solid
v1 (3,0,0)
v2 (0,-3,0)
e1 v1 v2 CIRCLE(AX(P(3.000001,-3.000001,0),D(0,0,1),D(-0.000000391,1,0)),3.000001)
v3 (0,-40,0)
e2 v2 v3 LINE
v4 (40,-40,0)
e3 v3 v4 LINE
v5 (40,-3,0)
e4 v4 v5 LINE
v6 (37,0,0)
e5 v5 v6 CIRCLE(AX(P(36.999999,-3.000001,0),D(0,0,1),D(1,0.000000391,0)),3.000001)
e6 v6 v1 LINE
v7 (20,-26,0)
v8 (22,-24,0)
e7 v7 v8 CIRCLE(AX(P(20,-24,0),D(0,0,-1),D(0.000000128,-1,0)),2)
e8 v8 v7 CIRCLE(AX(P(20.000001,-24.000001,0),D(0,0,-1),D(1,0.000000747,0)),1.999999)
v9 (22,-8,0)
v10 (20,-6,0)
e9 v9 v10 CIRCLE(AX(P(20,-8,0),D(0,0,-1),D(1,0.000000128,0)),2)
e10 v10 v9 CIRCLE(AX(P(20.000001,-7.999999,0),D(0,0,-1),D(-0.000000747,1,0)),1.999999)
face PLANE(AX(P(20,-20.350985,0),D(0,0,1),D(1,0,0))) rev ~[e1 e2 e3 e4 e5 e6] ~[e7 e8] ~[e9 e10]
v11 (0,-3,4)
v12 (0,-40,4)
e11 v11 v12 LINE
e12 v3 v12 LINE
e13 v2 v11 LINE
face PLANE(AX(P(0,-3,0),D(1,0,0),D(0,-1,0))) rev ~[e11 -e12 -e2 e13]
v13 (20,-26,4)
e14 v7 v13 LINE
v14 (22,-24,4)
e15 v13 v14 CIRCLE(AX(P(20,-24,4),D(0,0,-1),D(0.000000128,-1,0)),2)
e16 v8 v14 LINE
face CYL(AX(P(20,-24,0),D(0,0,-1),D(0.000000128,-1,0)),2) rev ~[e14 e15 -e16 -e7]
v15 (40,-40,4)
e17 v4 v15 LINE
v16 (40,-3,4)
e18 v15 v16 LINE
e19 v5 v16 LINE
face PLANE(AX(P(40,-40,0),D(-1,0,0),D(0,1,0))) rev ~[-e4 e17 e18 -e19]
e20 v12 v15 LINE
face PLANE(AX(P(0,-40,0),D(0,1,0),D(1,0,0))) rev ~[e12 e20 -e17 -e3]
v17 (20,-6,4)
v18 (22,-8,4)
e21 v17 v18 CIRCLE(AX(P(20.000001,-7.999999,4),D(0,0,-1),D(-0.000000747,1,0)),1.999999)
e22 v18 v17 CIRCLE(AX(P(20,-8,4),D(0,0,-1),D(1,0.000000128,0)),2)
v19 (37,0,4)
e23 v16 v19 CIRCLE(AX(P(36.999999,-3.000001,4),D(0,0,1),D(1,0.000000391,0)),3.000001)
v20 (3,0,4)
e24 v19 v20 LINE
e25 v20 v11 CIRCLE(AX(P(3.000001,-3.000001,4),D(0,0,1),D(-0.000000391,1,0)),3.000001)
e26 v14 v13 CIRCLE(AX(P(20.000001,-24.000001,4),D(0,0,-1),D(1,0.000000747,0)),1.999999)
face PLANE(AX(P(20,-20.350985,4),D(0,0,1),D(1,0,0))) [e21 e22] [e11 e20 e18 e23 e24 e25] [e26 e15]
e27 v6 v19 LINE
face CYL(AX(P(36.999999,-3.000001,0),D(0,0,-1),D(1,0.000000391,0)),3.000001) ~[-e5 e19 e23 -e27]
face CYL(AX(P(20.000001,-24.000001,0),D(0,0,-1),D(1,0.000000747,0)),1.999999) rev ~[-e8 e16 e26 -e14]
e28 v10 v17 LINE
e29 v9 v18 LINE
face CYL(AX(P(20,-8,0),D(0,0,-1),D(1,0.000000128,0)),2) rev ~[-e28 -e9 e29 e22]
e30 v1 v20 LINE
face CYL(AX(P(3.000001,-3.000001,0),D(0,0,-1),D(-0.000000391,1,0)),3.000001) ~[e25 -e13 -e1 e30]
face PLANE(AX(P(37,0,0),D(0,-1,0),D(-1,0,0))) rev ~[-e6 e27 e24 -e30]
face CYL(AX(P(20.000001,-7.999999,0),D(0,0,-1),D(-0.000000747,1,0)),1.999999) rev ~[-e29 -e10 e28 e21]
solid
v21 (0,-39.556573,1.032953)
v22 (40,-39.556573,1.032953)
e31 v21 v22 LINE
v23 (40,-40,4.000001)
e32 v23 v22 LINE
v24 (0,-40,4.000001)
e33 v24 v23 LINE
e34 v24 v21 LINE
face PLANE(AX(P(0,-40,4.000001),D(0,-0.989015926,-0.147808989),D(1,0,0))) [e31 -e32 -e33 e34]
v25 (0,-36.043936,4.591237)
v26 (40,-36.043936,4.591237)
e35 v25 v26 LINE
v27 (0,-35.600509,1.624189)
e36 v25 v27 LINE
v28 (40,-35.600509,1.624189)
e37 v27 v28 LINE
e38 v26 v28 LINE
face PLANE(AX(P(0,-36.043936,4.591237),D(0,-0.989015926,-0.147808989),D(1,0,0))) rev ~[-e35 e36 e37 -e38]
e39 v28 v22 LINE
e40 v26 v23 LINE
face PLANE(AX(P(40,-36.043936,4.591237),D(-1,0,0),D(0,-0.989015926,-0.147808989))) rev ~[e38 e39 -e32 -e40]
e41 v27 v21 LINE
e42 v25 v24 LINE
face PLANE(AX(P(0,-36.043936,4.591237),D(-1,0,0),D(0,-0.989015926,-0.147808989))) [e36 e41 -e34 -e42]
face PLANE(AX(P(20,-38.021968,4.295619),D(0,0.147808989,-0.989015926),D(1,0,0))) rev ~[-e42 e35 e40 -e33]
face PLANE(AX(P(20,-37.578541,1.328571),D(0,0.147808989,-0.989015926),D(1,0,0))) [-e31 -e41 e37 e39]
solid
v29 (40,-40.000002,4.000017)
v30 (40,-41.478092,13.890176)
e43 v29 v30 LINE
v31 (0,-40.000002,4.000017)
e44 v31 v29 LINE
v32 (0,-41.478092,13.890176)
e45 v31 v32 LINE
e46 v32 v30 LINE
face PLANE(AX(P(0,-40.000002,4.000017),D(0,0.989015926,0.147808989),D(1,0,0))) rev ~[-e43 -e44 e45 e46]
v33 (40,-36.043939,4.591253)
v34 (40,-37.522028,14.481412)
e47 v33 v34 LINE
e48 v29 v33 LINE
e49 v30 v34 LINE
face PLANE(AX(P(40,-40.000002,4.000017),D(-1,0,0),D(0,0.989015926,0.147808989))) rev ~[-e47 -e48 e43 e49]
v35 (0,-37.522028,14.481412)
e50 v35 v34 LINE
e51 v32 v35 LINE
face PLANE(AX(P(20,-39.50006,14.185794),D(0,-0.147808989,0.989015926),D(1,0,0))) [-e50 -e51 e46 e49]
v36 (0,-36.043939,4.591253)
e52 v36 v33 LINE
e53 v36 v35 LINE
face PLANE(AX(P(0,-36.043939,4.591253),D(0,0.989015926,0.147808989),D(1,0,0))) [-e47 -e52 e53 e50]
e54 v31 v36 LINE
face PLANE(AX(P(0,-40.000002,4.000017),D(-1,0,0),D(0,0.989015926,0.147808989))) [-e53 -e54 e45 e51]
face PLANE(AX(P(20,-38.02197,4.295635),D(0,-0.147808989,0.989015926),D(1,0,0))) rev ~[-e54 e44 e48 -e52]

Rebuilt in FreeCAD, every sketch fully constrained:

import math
import FreeCAD as App
import Part
import Sketcher


def add_polygon(sketch, points):
    """Adds a closed chain of lines whose ends are joined by coincident constraints."""
    first, n = sketch.GeometryCount, len(points)
    for a, b in zip(points, points[1:] + points[:1]):
        sketch.addGeometry(Part.LineSegment(App.Vector(*a, 0), App.Vector(*b, 0)), False)
    for i in range(n):
        sketch.addConstraint(Sketcher.Constraint("Coincident", first + i, 2, first + (i + 1) % n, 1))

doc = App.newDocument("Part")
params = doc.addObject("Spreadsheet::Sheet", "Params")
for row, (alias, value) in enumerate([
    ("sketch1_radius", "3.000001 mm"),
    ("sketch1_radius2", "2 mm"),
    ("sketch1_width", "40 mm"),
    ("sketch1_height", "37 mm"),
    ("pad1_length", "4 mm"),
    ("sketch2_width", "40 mm"),
    ("sketch2_height", "4 mm"),
    ("pad2_length", "10 mm"),
    ("sketch3_width", "40 mm"),
    ("sketch3_height", "4 mm"),
    ("pad3_length", "3 mm"),
], start=1):
    params.set(f"A{row}", alias)
    params.set(f"B{row}", "=" + value)
    params.setAlias(f"B{row}", alias)

body = doc.addObject("PartDesign::Body", "Body")

sketch1 = body.newObject("Sketcher::SketchObject", "Sketch")
sketch1.AttachmentSupport = (doc.getObject("XY_Plane"), [""])
sketch1.MapMode = "FlatFace"
sketch1.addGeometry(Part.ArcOfCircle(Part.Circle(App.Vector(3.000001, -3.000001, 0), App.Vector(0, 0, 1), 3.000001), math.radians(90.000022), math.radians(179.999978)), False)
sketch1.addGeometry(Part.LineSegment(App.Vector(0, -3, 0), App.Vector(0, -40, 0)), False)
sketch1.addGeometry(Part.LineSegment(App.Vector(0, -40, 0), App.Vector(40, -40, 0)), False)
sketch1.addGeometry(Part.LineSegment(App.Vector(40, -40, 0), App.Vector(40, -3, 0)), False)
sketch1.addGeometry(Part.ArcOfCircle(Part.Circle(App.Vector(36.999999, -3.000001, 0), App.Vector(0, 0, 1), 3.000001), math.radians(0.000022), math.radians(89.999978)), False)
sketch1.addGeometry(Part.LineSegment(App.Vector(37, 0, 0), App.Vector(3, 0, 0)), False)
sketch1.addGeometry(Part.ArcOfCircle(Part.Circle(App.Vector(20, -24, 0), App.Vector(0, 0, 1), 2), math.radians(-0.000007), math.radians(270.000007)), False)
sketch1.addGeometry(Part.ArcOfCircle(Part.Circle(App.Vector(20.000001, -24.000001, 0), App.Vector(0, 0, 1), 1.999999), math.radians(-90.000043), math.radians(0.000043)), False)
sketch1.addGeometry(Part.ArcOfCircle(Part.Circle(App.Vector(20.000001, -7.999999, 0), App.Vector(0, 0, 1), 1.999999), math.radians(-0.000043), math.radians(90.000043)), False)
sketch1.addGeometry(Part.ArcOfCircle(Part.Circle(App.Vector(20, -8, 0), App.Vector(0, 0, 1), 2), math.radians(89.999993), math.radians(360.000007)), False)
sketch1.addConstraint(Sketcher.Constraint("Tangent", 0, 2, 1, 1))
sketch1.addConstraint(Sketcher.Constraint("Coincident", 1, 2, 2, 1))
sketch1.addConstraint(Sketcher.Constraint("Coincident", 2, 2, 3, 1))
sketch1.addConstraint(Sketcher.Constraint("Tangent", 3, 2, 4, 1))
sketch1.addConstraint(Sketcher.Constraint("Tangent", 4, 2, 5, 1))
sketch1.addConstraint(Sketcher.Constraint("Tangent", 5, 2, 0, 1))
sketch1.addConstraint(Sketcher.Constraint("Tangent", 6, 1, 7, 2))
sketch1.addConstraint(Sketcher.Constraint("Coincident", 7, 1, 6, 2))
sketch1.addConstraint(Sketcher.Constraint("Tangent", 8, 1, 9, 2))
sketch1.addConstraint(Sketcher.Constraint("Coincident", 9, 1, 8, 2))
sketch1.addConstraint(Sketcher.Constraint("Vertical", 1))
sketch1.addConstraint(Sketcher.Constraint("Horizontal", 2))
sketch1.addConstraint(Sketcher.Constraint("Vertical", 3))
sketch1.addConstraint(Sketcher.Constraint("Horizontal", 5))
sketch1.addConstraint(Sketcher.Constraint("Equal", 0, 4))
sketch1.addConstraint(Sketcher.Constraint("Equal", 7, 8))
sketch1.addConstraint(Sketcher.Constraint("PointOnObject", 0, 2, -2))
sketch1.addConstraint(Sketcher.Constraint("PointOnObject", 4, 2, -1))
sketch1.addConstraint(Sketcher.Constraint("Horizontal", 7, 3, 6, 1))
sketch1.addConstraint(Sketcher.Constraint("Horizontal", 9, 3, 8, 1))
sketch1.addConstraint(Sketcher.Constraint("Vertical", 7, 3, 8, 3))
sketch1.addConstraint(Sketcher.Constraint("Vertical", 9, 3, 7, 1))
sketch1.addConstraint(Sketcher.Constraint("Vertical", 7, 1, 9, 1))
sketch1.addConstraint(Sketcher.Constraint("Radius", 0, 3.000001))
sketch1.addConstraint(Sketcher.Constraint("Radius", 6, 2.0))
sketch1.addConstraint(Sketcher.Constraint("DistanceX", 2, 1, 2, 2, 40.0))
sketch1.addConstraint(Sketcher.Constraint("DistanceY", 1, 2, 1, 1, 37.0))
sketch1.addConstraint(Sketcher.Constraint("DistanceX", -1, 1, 6, 3, 20.0))
sketch1.addConstraint(Sketcher.Constraint("DistanceY", 6, 3, -1, 1, 24.0))
sketch1.addConstraint(Sketcher.Constraint("DistanceY", 8, 3, -1, 1, 7.999999))
sketch1.setExpression("Constraints[23]", "Params.sketch1_radius")
sketch1.setExpression("Constraints[24]", "Params.sketch1_radius2")
sketch1.setExpression("Constraints[25]", "Params.sketch1_width")
sketch1.setExpression("Constraints[26]", "Params.sketch1_height")
pad1 = body.newObject("PartDesign::Pad", "Pad")
pad1.Profile = sketch1
pad1.setExpression("Length", "Params.pad1_length")
body2 = doc.addObject("PartDesign::Body", "Body001")

sketch2 = body2.newObject("Sketcher::SketchObject", "Sketch001")
sketch2.Placement = App.Placement(App.Vector(0, -1.458648, 9.760044), App.Rotation(App.Vector(1, 0, 0), App.Vector(0, 0.989015926, 0.147808989), App.Vector(0, -0.147808989, 0.989015926), "ZXY"))
add_polygon(sketch2, [(0, -34.969397), (0, -38.969397), (40, -38.969397), (40, -34.969397)])
sketch2.addConstraint(Sketcher.Constraint("Vertical", 0))
sketch2.addConstraint(Sketcher.Constraint("Horizontal", 1))
sketch2.addConstraint(Sketcher.Constraint("Vertical", 2))
sketch2.addConstraint(Sketcher.Constraint("Horizontal", 3))
sketch2.addConstraint(Sketcher.Constraint("PointOnObject", 0, 2, -2))
sketch2.addConstraint(Sketcher.Constraint("DistanceX", 1, 1, 1, 2, 40.0))
sketch2.addConstraint(Sketcher.Constraint("DistanceY", 0, 2, 0, 1, 4.0))
sketch2.addConstraint(Sketcher.Constraint("DistanceY", 0, 2, -1, 1, 38.969397))
sketch2.setExpression("Constraints[9]", "Params.sketch2_width")
sketch2.setExpression("Constraints[10]", "Params.sketch2_height")
pad2 = body2.newObject("PartDesign::Pad", "Pad001")
pad2.Profile = sketch2
pad2.setExpression("Length", "Params.pad2_length")
body3 = doc.addObject("PartDesign::Body", "Body002")

sketch3 = body3.newObject("Sketcher::SketchObject", "Sketch002")
sketch3.Placement = App.Placement(App.Vector(20, -38.021968, 4.295619), App.Rotation(App.Vector(1, 0, 0), App.Vector(0, -0.989015926, -0.147808989), App.Vector(0, 0.147808989, -0.989015926), "ZXY"))
add_polygon(sketch3, [(-20, 2), (-20, -2), (20, -2), (20, 2)])
sketch3.addConstraint(Sketcher.Constraint("Vertical", 0))
sketch3.addConstraint(Sketcher.Constraint("Horizontal", 1))
sketch3.addConstraint(Sketcher.Constraint("Vertical", 2))
sketch3.addConstraint(Sketcher.Constraint("Horizontal", 3))
sketch3.addConstraint(Sketcher.Constraint("Symmetric", 0, 2, 2, 2, -1, 1))
sketch3.addConstraint(Sketcher.Constraint("DistanceX", 1, 1, 1, 2, 40.0))
sketch3.addConstraint(Sketcher.Constraint("DistanceY", 0, 2, 0, 1, 4.0))
sketch3.setExpression("Constraints[9]", "Params.sketch3_width")
sketch3.setExpression("Constraints[10]", "Params.sketch3_height")
pad3 = body3.newObject("PartDesign::Pad", "Pad002")
pad3.Profile = sketch3
pad3.setExpression("Length", "Params.pad3_length")

doc.recompute()
